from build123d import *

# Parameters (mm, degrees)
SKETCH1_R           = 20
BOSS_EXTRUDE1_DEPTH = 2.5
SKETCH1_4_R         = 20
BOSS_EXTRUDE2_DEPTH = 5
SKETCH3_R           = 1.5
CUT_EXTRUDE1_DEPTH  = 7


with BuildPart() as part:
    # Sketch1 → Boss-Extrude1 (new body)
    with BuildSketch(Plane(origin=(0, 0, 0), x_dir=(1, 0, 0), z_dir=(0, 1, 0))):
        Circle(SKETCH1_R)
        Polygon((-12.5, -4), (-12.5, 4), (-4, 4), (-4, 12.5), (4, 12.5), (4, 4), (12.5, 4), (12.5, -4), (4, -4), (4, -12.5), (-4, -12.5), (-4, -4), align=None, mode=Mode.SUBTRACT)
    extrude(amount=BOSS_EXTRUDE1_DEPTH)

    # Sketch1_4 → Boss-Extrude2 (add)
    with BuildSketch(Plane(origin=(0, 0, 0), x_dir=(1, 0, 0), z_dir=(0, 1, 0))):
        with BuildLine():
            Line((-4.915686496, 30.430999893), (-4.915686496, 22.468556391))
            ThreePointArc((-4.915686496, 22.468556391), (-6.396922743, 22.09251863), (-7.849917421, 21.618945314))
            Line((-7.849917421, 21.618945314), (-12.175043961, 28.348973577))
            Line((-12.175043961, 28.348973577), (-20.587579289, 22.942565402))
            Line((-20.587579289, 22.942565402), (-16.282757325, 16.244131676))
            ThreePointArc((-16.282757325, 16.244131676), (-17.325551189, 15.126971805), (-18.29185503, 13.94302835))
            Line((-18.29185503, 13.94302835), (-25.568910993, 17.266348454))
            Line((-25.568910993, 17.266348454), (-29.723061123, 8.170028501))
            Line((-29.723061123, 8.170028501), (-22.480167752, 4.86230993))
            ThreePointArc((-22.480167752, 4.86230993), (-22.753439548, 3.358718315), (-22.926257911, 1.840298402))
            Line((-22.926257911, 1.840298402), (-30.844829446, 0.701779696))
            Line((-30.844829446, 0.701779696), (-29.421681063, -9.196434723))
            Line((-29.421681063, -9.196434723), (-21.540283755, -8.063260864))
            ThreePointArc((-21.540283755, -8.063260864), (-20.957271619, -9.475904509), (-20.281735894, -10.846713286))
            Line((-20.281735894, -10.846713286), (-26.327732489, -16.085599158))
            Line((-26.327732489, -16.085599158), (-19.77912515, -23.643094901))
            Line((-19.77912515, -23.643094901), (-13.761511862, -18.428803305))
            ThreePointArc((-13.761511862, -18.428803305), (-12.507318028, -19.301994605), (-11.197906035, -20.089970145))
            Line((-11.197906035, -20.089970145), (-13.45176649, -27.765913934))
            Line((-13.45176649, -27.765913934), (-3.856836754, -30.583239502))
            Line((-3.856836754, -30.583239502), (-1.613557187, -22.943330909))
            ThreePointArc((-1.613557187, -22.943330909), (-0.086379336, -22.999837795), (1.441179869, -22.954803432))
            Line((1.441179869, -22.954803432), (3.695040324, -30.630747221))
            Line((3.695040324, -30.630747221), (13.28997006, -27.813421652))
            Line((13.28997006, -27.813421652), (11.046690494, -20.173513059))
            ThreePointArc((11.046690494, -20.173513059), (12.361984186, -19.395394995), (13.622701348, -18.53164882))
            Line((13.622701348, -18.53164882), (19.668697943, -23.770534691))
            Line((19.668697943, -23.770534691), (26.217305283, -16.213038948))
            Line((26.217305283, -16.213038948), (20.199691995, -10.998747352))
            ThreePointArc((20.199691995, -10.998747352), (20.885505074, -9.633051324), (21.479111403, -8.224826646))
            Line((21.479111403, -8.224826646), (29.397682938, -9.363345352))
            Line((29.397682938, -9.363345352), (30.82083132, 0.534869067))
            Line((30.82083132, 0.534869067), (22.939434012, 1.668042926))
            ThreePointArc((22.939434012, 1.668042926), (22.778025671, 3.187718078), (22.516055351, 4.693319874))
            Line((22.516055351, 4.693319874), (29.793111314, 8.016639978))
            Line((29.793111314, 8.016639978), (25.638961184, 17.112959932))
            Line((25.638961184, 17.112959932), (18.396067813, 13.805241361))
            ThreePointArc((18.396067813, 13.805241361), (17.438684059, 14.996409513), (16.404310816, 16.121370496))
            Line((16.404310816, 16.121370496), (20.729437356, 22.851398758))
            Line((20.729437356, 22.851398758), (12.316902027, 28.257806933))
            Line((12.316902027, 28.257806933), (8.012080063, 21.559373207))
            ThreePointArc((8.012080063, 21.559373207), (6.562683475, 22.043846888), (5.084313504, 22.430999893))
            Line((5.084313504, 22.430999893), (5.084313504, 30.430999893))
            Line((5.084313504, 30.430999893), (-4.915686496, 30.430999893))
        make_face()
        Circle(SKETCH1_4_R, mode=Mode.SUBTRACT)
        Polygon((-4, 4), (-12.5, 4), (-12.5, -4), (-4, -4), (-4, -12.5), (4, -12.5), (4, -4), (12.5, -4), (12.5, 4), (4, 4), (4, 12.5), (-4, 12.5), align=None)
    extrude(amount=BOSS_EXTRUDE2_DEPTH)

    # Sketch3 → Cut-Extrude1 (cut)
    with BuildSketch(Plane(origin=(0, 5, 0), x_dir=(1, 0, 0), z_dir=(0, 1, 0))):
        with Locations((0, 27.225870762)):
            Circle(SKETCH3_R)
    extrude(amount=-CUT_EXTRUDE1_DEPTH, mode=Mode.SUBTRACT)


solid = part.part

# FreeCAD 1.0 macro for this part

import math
import FreeCAD as App
import Part
import Sketcher


def add_polygon(sketch, points):
    """Adds a closed chain of lines whose ends are joined by coincident constraints."""
    first, n = sketch.GeometryCount, len(points)
    for a, b in zip(points, points[1:] + points[:1]):
        sketch.addGeometry(Part.LineSegment(App.Vector(*a, 0), App.Vector(*b, 0)), False)
    for i in range(n):
        sketch.addConstraint(Sketcher.Constraint("Coincident", first + i, 2, first + (i + 1) % n, 1))

doc = App.newDocument("Part")
body = doc.addObject("PartDesign::Body", "Body")

sketch1 = body.newObject("Sketcher::SketchObject", "Sketch")
sketch1.AttachmentSupport = (doc.getObject("XZ_Plane"), [""])
sketch1.MapMode = "FlatFace"
sketch1.addGeometry(Part.Circle(App.Vector(0, 0, 0), App.Vector(0, 0, 1), 20), False)
add_polygon(sketch1, [(-4, 4), (-12, 4), (-12, -4), (-4, -4), (-4, -12), (4, -12), (4, -4), (12, -4), (12, 4), (4, 4), (4, 12), (-4, 12)])
sketch1.addConstraint([
    Sketcher.Constraint("Horizontal", 1),
    Sketcher.Constraint("Vertical", 2),
    Sketcher.Constraint("Horizontal", 3),
    Sketcher.Constraint("Vertical", 4),
    Sketcher.Constraint("Horizontal", 5),
    Sketcher.Constraint("Vertical", 6),
    Sketcher.Constraint("Horizontal", 7),
    Sketcher.Constraint("Vertical", 8),
    Sketcher.Constraint("Horizontal", 9),
    Sketcher.Constraint("Vertical", 10),
    Sketcher.Constraint("Horizontal", 11),
    Sketcher.Constraint("Vertical", 12),
    Sketcher.Constraint("Coincident", 0, 3, -1, 1),
    Sketcher.Constraint("Symmetric", 1, 2, 7, 2, -1, 1),
    Sketcher.Constraint("Symmetric", 3, 2, 9, 2, -1, 1),
    Sketcher.Constraint("Symmetric", 5, 2, 11, 2, -1, 1),
    Sketcher.Constraint("Symmetric", 3, 2, 6, 2, -2),
    Sketcher.Constraint("Equal", 11, 2),
    Sketcher.Constraint("Equal", 9, 4),
    Sketcher.Constraint("Diameter", 0, 40.0),
    Sketcher.Constraint("DistanceX", 5, 1, 5, 2, 8.0),
    Sketcher.Constraint("DistanceX", 1, 2, 1, 1, 8.5),
])
pad1 = body.newObject("PartDesign::Pad", "Pad")
pad1.Profile = sketch1
pad1.Length = 2.5
pad1.Reversed = True

sketch2 = body.newObject("Sketcher::SketchObject", "Sketch001")
sketch2.AttachmentSupport = (doc.getObject("XZ_Plane"), [""])
sketch2.MapMode = "FlatFace"
sketch2.addGeometry(Part.LineSegment(App.Vector(-4.9, -30.4, 0), App.Vector(-4.9, -22.5, 0)), False)
sketch2.addGeometry(Part.ArcOfCircle(Part.Circle(App.Vector(0, 0, 0), App.Vector(0, 0, 1), 23), math.radians(-109.96), math.radians(-102.34)), False)
sketch2.addGeometry(Part.LineSegment(App.Vector(-7.8, -21.6, 0), App.Vector(-12.2, -28.3, 0)), False)
sketch2.addGeometry(Part.LineSegment(App.Vector(-12.2, -28.3, 0), App.Vector(-20.6, -22.9, 0)), False)
sketch2.addGeometry(Part.LineSegment(App.Vector(-20.6, -22.9, 0), App.Vector(-16.3, -16.2, 0)), False)
sketch2.addGeometry(Part.ArcOfCircle(Part.Circle(App.Vector(0, 0, 0), App.Vector(0, 0, 1), 23), math.radians(-142.68), math.radians(-135.07)), False)
sketch2.addGeometry(Part.LineSegment(App.Vector(-18.3, -13.9, 0), App.Vector(-25.6, -17.3, 0)), False)
sketch2.addGeometry(Part.LineSegment(App.Vector(-25.6, -17.3, 0), App.Vector(-29.7, -8.2, 0)), False)
sketch2.addGeometry(Part.LineSegment(App.Vector(-29.7, -8.2, 0), App.Vector(-22.5, -4.9, 0)), False)
sketch2.addGeometry(Part.ArcOfCircle(Part.Circle(App.Vector(0, 0, 0), App.Vector(0, 0, 1), 23), math.radians(-175.41), math.radians(-167.8)), False)
sketch2.addGeometry(Part.LineSegment(App.Vector(-22.9, -1.8, 0), App.Vector(-30.8, -0.7, 0)), False)
sketch2.addGeometry(Part.LineSegment(App.Vector(-30.8, -0.7, 0), App.Vector(-29.4, 9.2, 0)), False)
sketch2.addGeometry(Part.LineSegment(App.Vector(-29.4, 9.2, 0), App.Vector(-21.5, 8.1, 0)), False)
sketch2.addGeometry(Part.ArcOfCircle(Part.Circle(App.Vector(0, 0, 0), App.Vector(0, 0, 1), 23), math.radians(151.86), math.radians(159.48)), False)
sketch2.addGeometry(Part.LineSegment(App.Vector(-20.3, 10.8, 0), App.Vector(-26.3, 16.1, 0)), False)
sketch2.addGeometry(Part.LineSegment(App.Vector(-26.3, 16.1, 0), App.Vector(-19.8, 23.6, 0)), False)
sketch2.addGeometry(Part.LineSegment(App.Vector(-19.8, 23.6, 0), App.Vector(-13.8, 18.4, 0)), False)
sketch2.addGeometry(Part.ArcOfCircle(Part.Circle(App.Vector(0, 0, 0), App.Vector(0, 0, 1), 23), math.radians(119.13), math.radians(126.75)), False)
sketch2.addGeometry(Part.LineSegment(App.Vector(-11.2, 20.1, 0), App.Vector(-13.5, 27.8, 0)), False)
sketch2.addGeometry(Part.LineSegment(App.Vector(-13.5, 27.8, 0), App.Vector(-3.9, 30.6, 0)), False)
sketch2.addGeometry(Part.LineSegment(App.Vector(-3.9, 30.6, 0), App.Vector(-1.6, 22.9, 0)), False)
sketch2.addGeometry(Part.ArcOfCircle(Part.Circle(App.Vector(0, 0, 0), App.Vector(0, 0, 1), 23), math.radians(86.41), math.radians(94.02)), False)
sketch2.addGeometry(Part.LineSegment(App.Vector(1.4, 23, 0), App.Vector(3.7, 30.6, 0)), False)
sketch2.addGeometry(Part.LineSegment(App.Vector(3.7, 30.6, 0), App.Vector(13.3, 27.8, 0)), False)
sketch2.addGeometry(Part.LineSegment(App.Vector(13.3, 27.8, 0), App.Vector(11, 20.2, 0)), False)
sketch2.addGeometry(Part.ArcOfCircle(Part.Circle(App.Vector(0, 0, 0), App.Vector(0, 0, 1), 23), math.radians(53.68), math.radians(61.3)), False)
sketch2.addGeometry(Part.LineSegment(App.Vector(13.6, 18.5, 0), App.Vector(19.7, 23.8, 0)), False)
sketch2.addGeometry(Part.LineSegment(App.Vector(19.7, 23.8, 0), App.Vector(26.2, 16.2, 0)), False)
sketch2.addGeometry(Part.LineSegment(App.Vector(26.2, 16.2, 0), App.Vector(20.2, 11, 0)), False)
sketch2.addGeometry(Part.ArcOfCircle(Part.Circle(App.Vector(0, 0, 0), App.Vector(0, 0, 1), 23), math.radians(20.95), math.radians(28.57)), False)
sketch2.addGeometry(Part.LineSegment(App.Vector(21.5, 8.2, 0), App.Vector(29.4, 9.4, 0)), False)
sketch2.addGeometry(Part.LineSegment(App.Vector(29.4, 9.4, 0), App.Vector(30.8, -0.5, 0)), False)
sketch2.addGeometry(Part.LineSegment(App.Vector(30.8, -0.5, 0), App.Vector(22.9, -1.7, 0)), False)
sketch2.addGeometry(Part.ArcOfCircle(Part.Circle(App.Vector(0, 0, 0), App.Vector(0, 0, 1), 23), math.radians(-11.77), math.radians(-4.16)), False)
sketch2.addGeometry(Part.LineSegment(App.Vector(22.5, -4.7, 0), App.Vector(29.8, -8, 0)), False)
sketch2.addGeometry(Part.LineSegment(App.Vector(29.8, -8, 0), App.Vector(25.6, -17.1, 0)), False)
sketch2.addGeometry(Part.LineSegment(App.Vector(25.6, -17.1, 0), App.Vector(18.4, -13.8, 0)), False)
sketch2.addGeometry(Part.ArcOfCircle(Part.Circle(App.Vector(0, 0, 0), App.Vector(0, 0, 1), 23), math.radians(-44.5), math.radians(-36.89)), False)
sketch2.addGeometry(Part.LineSegment(App.Vector(16.4, -16.1, 0), App.Vector(20.7, -22.9, 0)), False)
sketch2.addGeometry(Part.LineSegment(App.Vector(20.7, -22.9, 0), App.Vector(12.3, -28.3, 0)), False)
sketch2.addGeometry(Part.LineSegment(App.Vector(12.3, -28.3, 0), App.Vector(8, -21.6, 0)), False)
sketch2.addGeometry(Part.ArcOfCircle(Part.Circle(App.Vector(0, 0, 0), App.Vector(0, 0, 1), 23), math.radians(-77.23), math.radians(-69.61)), False)
sketch2.addGeometry(Part.LineSegment(App.Vector(5.1, -22.4, 0), App.Vector(5.1, -30.4, 0)), False)
sketch2.addGeometry(Part.LineSegment(App.Vector(5.1, -30.4, 0), App.Vector(-4.9, -30.4, 0)), False)
sketch2.addGeometry(Part.Circle(App.Vector(0, 0, 0), App.Vector(0, 0, 1), 20), False)
add_polygon(sketch2, [(-4, -4), (-12.5, -4), (-12.5, 4), (-4, 4), (-4, 12.5), (4, 12.5), (4, 4), (12.5, 4), (12.5, -4), (4, -4), (4, -12.5), (-4, -12.5)])
sketch2.addConstraint([
    Sketcher.Constraint("Coincident", 0, 2, 1, 2),
    Sketcher.Constraint("Coincident", 1, 1, 2, 1),
    Sketcher.Constraint("Coincident", 2, 2, 3, 1),
    Sketcher.Constraint("Coincident", 3, 2, 4, 1),
    Sketcher.Constraint("Coincident", 4, 2, 5, 2),
    Sketcher.Constraint("Coincident", 5, 1, 6, 1),
    Sketcher.Constraint("Coincident", 6, 2, 7, 1),
    Sketcher.Constraint("Coincident", 7, 2, 8, 1),
    Sketcher.Constraint("Coincident", 8, 2, 9, 2),
    Sketcher.Constraint("Coincident", 9, 1, 10, 1),
    Sketcher.Constraint("Coincident", 10, 2, 11, 1),
    Sketcher.Constraint("Coincident", 11, 2, 12, 1),
    Sketcher.Constraint("Coincident", 12, 2, 13, 2),
    Sketcher.Constraint("Coincident", 13, 1, 14, 1),
    Sketcher.Constraint("Coincident", 14, 2, 15, 1),
    Sketcher.Constraint("Coincident", 15, 2, 16, 1),
    Sketcher.Constraint("Coincident", 16, 2, 17, 2),
    Sketcher.Constraint("Coincident", 17, 1, 18, 1),
    Sketcher.Constraint("Coincident", 18, 2, 19, 1),
    Sketcher.Constraint("Coincident", 19, 2, 20, 1),
    Sketcher.Constraint("Coincident", 20, 2, 21, 2),
    Sketcher.Constraint("Coincident", 21, 1, 22, 1),
    Sketcher.Constraint("Coincident", 22, 2, 23, 1),
    Sketcher.Constraint("Coincident", 23, 2, 24, 1),
    Sketcher.Constraint("Coincident", 24, 2, 25, 2),
    Sketcher.Constraint("Coincident", 25, 1, 26, 1),
    Sketcher.Constraint("Coincident", 26, 2, 27, 1),
    Sketcher.Constraint("Coincident", 27, 2, 28, 1),
    Sketcher.Constraint("Coincident", 28, 2, 29, 2),
    Sketcher.Constraint("Coincident", 29, 1, 30, 1),
    Sketcher.Constraint("Coincident", 30, 2, 31, 1),
    Sketcher.Constraint("Coincident", 31, 2, 32, 1),
    Sketcher.Constraint("Coincident", 32, 2, 33, 2),
    Sketcher.Constraint("Coincident", 33, 1, 34, 1),
    Sketcher.Constraint("Coincident", 34, 2, 35, 1),
    Sketcher.Constraint("Coincident", 35, 2, 36, 1),
    Sketcher.Constraint("Coincident", 36, 2, 37, 2),
    Sketcher.Constraint("Coincident", 37, 1, 38, 1),
    Sketcher.Constraint("Coincident", 38, 2, 39, 1),
    Sketcher.Constraint("Coincident", 39, 2, 40, 1),
    Sketcher.Constraint("Coincident", 40, 2, 41, 2),
    Sketcher.Constraint("Coincident", 41, 1, 42, 1),
    Sketcher.Constraint("Coincident", 42, 2, 43, 1),
    Sketcher.Constraint("Coincident", 43, 2, 0, 1),
    Sketcher.Constraint("Vertical", 0),
    Sketcher.Constraint("Vertical", 42),
    Sketcher.Constraint("Horizontal", 43),
    Sketcher.Constraint("Horizontal", 45),
    Sketcher.Constraint("Vertical", 46),
    Sketcher.Constraint("Horizontal", 47),
    Sketcher.Constraint("Vertical", 48),
    Sketcher.Constraint("Horizontal", 49),
    Sketcher.Constraint("Vertical", 50),
    Sketcher.Constraint("Horizontal", 51),
    Sketcher.Constraint("Vertical", 52),
    Sketcher.Constraint("Horizontal", 53),
    Sketcher.Constraint("Vertical", 54),
    Sketcher.Constraint("Horizontal", 55),
    Sketcher.Constraint("Vertical", 56),
    Sketcher.Constraint("Coincident", 1, 3, -1, 1),
    Sketcher.Constraint("Coincident", 5, 3, -1, 1),
    Sketcher.Constraint("Coincident", 9, 3, -1, 1),
    Sketcher.Constraint("Coincident", 13, 3, -1, 1),
    Sketcher.Constraint("Coincident", 17, 3, -1, 1),
    Sketcher.Constraint("Coincident", 21, 3, -1, 1),
    Sketcher.Constraint("Coincident", 25, 3, -1, 1),
    Sketcher.Constraint("Coincident", 29, 3, -1, 1),
    Sketcher.Constraint("Coincident", 33, 3, -1, 1),
    Sketcher.Constraint("Coincident", 37, 3, -1, 1),
    Sketcher.Constraint("Coincident", 41, 3, -1, 1),
    Sketcher.Constraint("Coincident", 44, 3, -1, 1),
    Sketcher.Constraint("Equal", 1, 5),
    Sketcher.Constraint("Equal", 5, 9),
    Sketcher.Constraint("Equal", 9, 13),
    Sketcher.Constraint("Equal", 13, 17),
    Sketcher.Constraint("Equal", 17, 21),
    Sketcher.Constraint("Equal", 21, 25),
    Sketcher.Constraint("Equal", 25, 29),
    Sketcher.Constraint("Equal", 29, 33),
    Sketcher.Constraint("Equal", 33, 37),
    Sketcher.Constraint("Equal", 37, 41),
    Sketcher.Constraint("Symmetric", 45, 2, 51, 2, -1, 1),
    Sketcher.Constraint("Symmetric", 47, 2, 53, 2, -1, 1),
    Sketcher.Constraint("Symmetric", 49, 2, 55, 2, -1, 1),
    Sketcher.Constraint("Symmetric", 47, 2, 50, 2, -2),
    Sketcher.Constraint("Perpendicular", 2, 3),
    Sketcher.Constraint("Perpendicular", 3, 4),
    Sketcher.Constraint("Perpendicular", 6, 7),
    Sketcher.Constraint("Perpendicular", 7, 8),
    Sketcher.Constraint("Perpendicular", 10, 11),
    Sketcher.Constraint("Perpendicular", 11, 12),
    Sketcher.Constraint("Perpendicular", 14, 15),
    Sketcher.Constraint("Perpendicular", 15, 16),
    Sketcher.Constraint("Perpendicular", 18, 19),
    Sketcher.Constraint("Perpendicular", 19, 20),
    Sketcher.Constraint("Perpendicular", 22, 23),
    Sketcher.Constraint("Perpendicular", 23, 24),
    Sketcher.Constraint("Perpendicular", 26, 27),
    Sketcher.Constraint("Perpendicular", 27, 28),
    Sketcher.Constraint("Perpendicular", 30, 31),
    Sketcher.Constraint("Perpendicular", 31, 32),
    Sketcher.Constraint("Perpendicular", 34, 35),
    Sketcher.Constraint("Perpendicular", 35, 36),
    Sketcher.Constraint("Perpendicular", 38, 39),
    Sketcher.Constraint("Perpendicular", 39, 40),
    Sketcher.Constraint("Equal", 55, 42),
    Sketcher.Constraint("Equal", 42, 46),
    Sketcher.Constraint("Equal", 53, 48),
    Sketcher.Constraint("Equal", 2, 6),
    Sketcher.Constraint("Equal", 3, 7),
    Sketcher.Constraint("Equal", 4, 8),
    Sketcher.Constraint("Equal", 6, 10),
    Sketcher.Constraint("Equal", 7, 11),
    Sketcher.Constraint("Equal", 8, 12),
    Sketcher.Constraint("Equal", 10, 14),
    Sketcher.Constraint("Equal", 11, 15),
    Sketcher.Constraint("Equal", 12, 16),
    Sketcher.Constraint("Equal", 14, 18),
    Sketcher.Constraint("Equal", 15, 19),
    Sketcher.Constraint("Equal", 16, 20),
    Sketcher.Constraint("Equal", 18, 22),
    Sketcher.Constraint("Equal", 19, 23),
    Sketcher.Constraint("Equal", 20, 24),
    Sketcher.Constraint("Equal", 22, 26),
    Sketcher.Constraint("Equal", 23, 27),
    Sketcher.Constraint("Equal", 24, 28),
    Sketcher.Constraint("Equal", 26, 30),
    Sketcher.Constraint("Equal", 27, 31),
    Sketcher.Constraint("Equal", 28, 32),
    Sketcher.Constraint("Equal", 30, 34),
    Sketcher.Constraint("Equal", 31, 35),
    Sketcher.Constraint("Equal", 32, 36),
    Sketcher.Constraint("Equal", 34, 38),
    Sketcher.Constraint("Equal", 35, 39),
    Sketcher.Constraint("Equal", 36, 40),
    Sketcher.Constraint("Diameter", 44, 40.0),
    Sketcher.Constraint("Radius", 1, 23.0),
    Sketcher.Constraint("DistanceX", 43, 2, 43, 1, 10.0),
    Sketcher.Constraint("DistanceX", 49, 1, 49, 2, 8.0),
    Sketcher.Constraint("Distance", 2, 8.0),
    Sketcher.Constraint("Distance", 3, 10.0),
    Sketcher.Constraint("DistanceX", 45, 2, 45, 1, 8.5),
    Sketcher.Constraint("DistanceY", 41, 1, -1, 1, 22.431),
    Sketcher.Constraint("DistanceY", 9, 1, -1, 1, 1.840298),
    Sketcher.Constraint("DistanceY", -1, 1, 14, 2, 16.085599),
    Sketcher.Constraint("DistanceX", -1, 1, 25, 1, 13.622701),
    Sketcher.Constraint("DistanceY", 38, 2, -1, 1, 22.851399),
    Sketcher.Constraint("DistanceX", 3, 2, -1, 1, 20.587579),
    Sketcher.Constraint("DistanceY", 4, 2, -1, 1, 16.244132),
    Sketcher.Constraint("DistanceY", 5, 1, -1, 1, 13.943028),
    Sketcher.Constraint("DistanceY", -1, 1, 17, 1, 20.08997),
    Sketcher.Constraint("DistanceX", -1, 1, 21, 1, 1.44118),
    Sketcher.Constraint("DistanceX", -1, 1, 29, 1, 21.479111),
    Sketcher.Constraint("DistanceY", 33, 1, -1, 1, 4.69332),
])
pad2 = body.newObject("PartDesign::Pad", "Pad001")
pad2.Profile = sketch2
pad2.Length = 5
pad2.Reversed = True

sketch3 = body.newObject("Sketcher::SketchObject", "Sketch002")
sketch3.AttachmentSupport = (doc.getObject("XZ_Plane"), [""])
sketch3.MapMode = "FlatFace"
sketch3.AttachmentOffset = App.Placement(App.Vector(0, 0, -5), App.Rotation())
sketch3.addGeometry(Part.Circle(App.Vector(0, -27.2, 0), App.Vector(0, 0, 1), 1.5), False)
sketch3.addConstraint([
    Sketcher.Constraint("PointOnObject", 0, 3, -2),
    Sketcher.Constraint("Diameter", 0, 3.0),
    Sketcher.Constraint("DistanceY", 0, 3, -1, 1, 27.225871),
])
pocket1 = body.newObject("PartDesign::Pocket", "Pocket")
pocket1.Profile = sketch3
pocket1.Length = 7
pocket1.Reversed = True

doc.recompute()
